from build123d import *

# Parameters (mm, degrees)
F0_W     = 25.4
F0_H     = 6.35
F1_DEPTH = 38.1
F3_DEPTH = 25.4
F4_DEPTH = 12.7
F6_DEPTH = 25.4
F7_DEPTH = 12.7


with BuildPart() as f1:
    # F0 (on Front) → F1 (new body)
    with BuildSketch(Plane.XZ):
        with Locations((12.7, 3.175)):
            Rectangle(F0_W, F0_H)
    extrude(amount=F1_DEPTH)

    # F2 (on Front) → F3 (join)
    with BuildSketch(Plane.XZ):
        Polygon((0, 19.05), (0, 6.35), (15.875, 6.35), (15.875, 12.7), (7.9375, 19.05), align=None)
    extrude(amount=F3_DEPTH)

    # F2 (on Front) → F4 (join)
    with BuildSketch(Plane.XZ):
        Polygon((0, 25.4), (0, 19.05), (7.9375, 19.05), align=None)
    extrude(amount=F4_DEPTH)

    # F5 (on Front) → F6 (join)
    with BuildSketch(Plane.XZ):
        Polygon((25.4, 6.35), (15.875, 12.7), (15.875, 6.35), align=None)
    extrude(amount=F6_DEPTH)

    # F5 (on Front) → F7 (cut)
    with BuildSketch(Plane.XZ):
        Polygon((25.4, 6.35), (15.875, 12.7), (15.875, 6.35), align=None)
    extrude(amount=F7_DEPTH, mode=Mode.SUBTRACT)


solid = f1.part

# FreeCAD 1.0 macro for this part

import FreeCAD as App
import Part
import Sketcher
from FreeCAD import Vector
Q = App.Units.Quantity


def add_polygon(sketch, points):
    """Adds a closed chain of lines whose ends are joined by coincident constraints."""
    first, n = sketch.GeometryCount, len(points)
    for a, b in zip(points, points[1:] + points[:1]):
        sketch.addGeometry(Part.LineSegment(App.Vector(*a, 0), App.Vector(*b, 0)), False)
    for i in range(n):
        sketch.addConstraint(Sketcher.Constraint("Coincident", first + i, 2, first + (i + 1) % n, 1))

doc = App.newDocument("Part")
body = doc.addObject("PartDesign::Body", "Body")

sketch1 = body.newObject("Sketcher::SketchObject", "Sketch")
sketch1.AttachmentSupport = (doc.getObject("XZ_Plane"), [""])
sketch1.MapMode = "FlatFace"
add_polygon(sketch1, [(0, 6), (0, 0), (25, 0), (25, 6)])
sketch1.addConstraint([
    Sketcher.Constraint("Vertical", 0),
    Sketcher.Constraint("Horizontal", 1),
    Sketcher.Constraint("Vertical", 2),
    Sketcher.Constraint("Horizontal", 3),
    Sketcher.Constraint("Coincident", 0, 2, -1, 1),
    Sketcher.Constraint("DistanceX", 1, 1, 1, 2, Q("1 in")),
    Sketcher.Constraint("DistanceY", 0, 2, 0, 1, Q("0.25 in")),
])
pad1 = body.newObject("PartDesign::Pad", "Pad")
pad1.Profile = sketch1
pad1.Length = Q("1.5 in")

sketch2 = body.newObject("Sketcher::SketchObject", "Sketch001")
sketch2.AttachmentSupport = (doc.getObject("XZ_Plane"), [""])
sketch2.MapMode = "FlatFace"
add_polygon(sketch2, [(0, 19), (0, 6), (16, 6), (16, 13), (8, 19)])
sketch2.addConstraint([
    Sketcher.Constraint("Vertical", 0),
    Sketcher.Constraint("Horizontal", 1),
    Sketcher.Constraint("Vertical", 2),
    Sketcher.Constraint("Horizontal", 4),
    Sketcher.Constraint("PointOnObject", 0, 2, -2),
    Sketcher.Constraint("DistanceY", 0, 2, 0, 1, Q("0.5 in")),
    Sketcher.Constraint("DistanceY", 2, 1, 2, 2, Q("0.25 in")),
    Sketcher.Constraint("DistanceY", -1, 1, 2, 2, Q("0.5 in")),
    Sketcher.Constraint("DistanceX", 1, 1, 1, 2, Q("0.625 in")),
    Sketcher.Constraint("DistanceX", 4, 2, 4, 1, Q("0.3125 in")),
])
pad2 = body.newObject("PartDesign::Pad", "Pad001")
pad2.Profile = sketch2
pad2.Length = Q("1 in")

sketch3 = body.newObject("Sketcher::SketchObject", "Sketch002")
sketch3.AttachmentSupport = (doc.getObject("XZ_Plane"), [""])
sketch3.MapMode = "FlatFace"
add_polygon(sketch3, [(0, 25), (0, 19), (8, 19)])
sketch3.addConstraint([
    Sketcher.Constraint("Vertical", 0),
    Sketcher.Constraint("Horizontal", 1),
    Sketcher.Constraint("PointOnObject", 0, 2, -2),
    Sketcher.Constraint("DistanceY", -1, 1, 2, 2, Q("1 in")),
    Sketcher.Constraint("DistanceY", 0, 2, 0, 1, Q("0.25 in")),
    Sketcher.Constraint("DistanceX", 1, 1, 1, 2, Q("0.3125 in")),
])
pad3 = body.newObject("PartDesign::Pad", "Pad002")
pad3.Profile = sketch3
pad3.Length = Q("0.5 in")

sketch4 = body.newObject("Sketcher::SketchObject", "Sketch003")
sketch4.AttachmentSupport = (doc.getObject("XZ_Plane"), [""])
sketch4.MapMode = "FlatFace"
add_polygon(sketch4, [(25, 6), (16, 13), (16, 6)])
sketch4.addConstraint([
    Sketcher.Constraint("Vertical", 1),
    Sketcher.Constraint("Horizontal", 2),
    Sketcher.Constraint("DistanceX", -1, 1, 2, 2, Q("1 in")),
    Sketcher.Constraint("DistanceY", 1, 2, 1, 1, Q("0.25 in")),
    Sketcher.Constraint("DistanceY", -1, 1, 0, 2, Q("0.5 in")),
    Sketcher.Constraint("DistanceX", 2, 1, 2, 2, Q("0.375 in")),
])
pad4 = body.newObject("PartDesign::Pad", "Pad003")
pad4.Profile = sketch4
pad4.Length = Q("1 in")

sketch5 = body.newObject("Sketcher::SketchObject", "Sketch004")
sketch5.AttachmentSupport = (doc.getObject("XZ_Plane"), [""])
sketch5.MapMode = "FlatFace"
add_polygon(sketch5, [(25, 6), (16, 13), (16, 6)])
sketch5.addConstraint([
    Sketcher.Constraint("Vertical", 1),
    Sketcher.Constraint("Horizontal", 2),
    Sketcher.Constraint("DistanceX", -1, 1, 2, 2, Q("1 in")),
    Sketcher.Constraint("DistanceY", 1, 2, 1, 1, Q("0.25 in")),
    Sketcher.Constraint("DistanceY", -1, 1, 0, 2, Q("0.5 in")),
    Sketcher.Constraint("DistanceX", 2, 1, 2, 2, Q("0.375 in")),
])
pocket1 = body.newObject("PartDesign::Pocket", "Pocket")
pocket1.Profile = sketch5
pocket1.Length = Q("0.5 in")
pocket1.Reversed = True

doc.recompute()
